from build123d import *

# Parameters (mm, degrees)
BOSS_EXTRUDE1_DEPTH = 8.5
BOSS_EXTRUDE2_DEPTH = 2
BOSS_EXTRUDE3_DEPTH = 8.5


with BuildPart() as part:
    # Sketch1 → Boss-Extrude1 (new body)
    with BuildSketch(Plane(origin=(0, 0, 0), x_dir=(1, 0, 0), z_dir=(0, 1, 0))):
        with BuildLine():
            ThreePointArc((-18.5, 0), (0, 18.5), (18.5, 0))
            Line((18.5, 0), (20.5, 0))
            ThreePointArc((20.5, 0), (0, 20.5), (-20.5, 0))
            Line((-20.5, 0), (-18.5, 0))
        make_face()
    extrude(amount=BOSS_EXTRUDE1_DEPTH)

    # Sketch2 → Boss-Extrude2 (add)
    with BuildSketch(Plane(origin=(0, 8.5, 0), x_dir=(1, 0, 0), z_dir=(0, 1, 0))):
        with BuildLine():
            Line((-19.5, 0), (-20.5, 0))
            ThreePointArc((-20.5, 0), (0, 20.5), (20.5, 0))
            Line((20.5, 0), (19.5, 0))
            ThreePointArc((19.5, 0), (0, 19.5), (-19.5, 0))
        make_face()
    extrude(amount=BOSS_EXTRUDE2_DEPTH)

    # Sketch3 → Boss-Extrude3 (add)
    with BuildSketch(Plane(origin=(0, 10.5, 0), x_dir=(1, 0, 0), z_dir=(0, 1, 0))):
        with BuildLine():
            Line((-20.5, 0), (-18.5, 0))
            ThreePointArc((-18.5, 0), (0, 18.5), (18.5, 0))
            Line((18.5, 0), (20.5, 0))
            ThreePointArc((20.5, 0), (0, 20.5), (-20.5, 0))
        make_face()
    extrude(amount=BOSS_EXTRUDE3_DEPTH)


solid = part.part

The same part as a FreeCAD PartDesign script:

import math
import FreeCAD as App
import Part
import Sketcher
from FreeCAD import Vector

doc = App.newDocument("Part")
params = doc.addObject("Spreadsheet::Sheet", "Params")
for row, (alias, value) in enumerate([
    ("sketch1_radius", "18.5 mm"),
    ("sketch1_radius2", "20.5 mm"),
    ("pad1_length", "8.5 mm"),
    ("sketch2_radius", "19.5 mm"),
    ("sketch2_radius2", "20.5 mm"),
    ("pad2_length", "2 mm"),
    ("sketch3_radius", "18.5 mm"),
    ("sketch3_radius2", "20.5 mm"),
    ("pad3_length", "8.5 mm"),
], start=1):
    params.set(f"A{row}", alias)
    params.set(f"B{row}", "=" + value)
    params.setAlias(f"B{row}", alias)

body = doc.addObject("PartDesign::Body", "Body")

# Sketch on XZ plane
sketch1 = body.newObject("Sketcher::SketchObject", "Sketch")
sketch1.AttachmentSupport = (doc.getObject("XZ_Plane"), [""])
sketch1.MapMode = "FlatFace"
sketch1.addGeometry([
    Part.ArcOfCircle(Part.Circle(Vector(0, 0, 0), Vector(0, 0, 1), 18.5), math.radians(180), math.radians(360)),
    Part.LineSegment(Vector(18.5, 0, 0), Vector(20.5, 0, 0)),
    Part.ArcOfCircle(Part.Circle(Vector(0, 0, 0), Vector(0, 0, 1), 20.5), math.radians(180), math.radians(360)),
    Part.LineSegment(Vector(-20.5, 0, 0), Vector(-18.5, 0, 0)),
], False)
sketch1.addConstraint([
    Sketcher.Constraint("Coincident", 0, 2, 1, 1),
    Sketcher.Constraint("Coincident", 1, 2, 2, 2),
    Sketcher.Constraint("Coincident", 2, 1, 3, 1),
    Sketcher.Constraint("Coincident", 3, 2, 0, 1),
    Sketcher.Constraint("Horizontal", 1),
    Sketcher.Constraint("Horizontal", 3),
    Sketcher.Constraint("Coincident", 0, 3, -1, 1),
    Sketcher.Constraint("Coincident", 2, 3, -1, 1),
    Sketcher.Constraint("PointOnObject", 0, 2, -1),
    Sketcher.Constraint("PointOnObject", 2, 1, -1),
    Sketcher.Constraint("Radius", 0, 18.5),
    Sketcher.Constraint("Radius", 2, 20.5),
])
sketch1.setExpression("Constraints[10]", "Params.sketch1_radius")
sketch1.setExpression("Constraints[11]", "Params.sketch1_radius2")
pad1 = body.newObject("PartDesign::Pad", "Pad")
pad1.Profile = sketch1
pad1.setExpression("Length", "Params.pad1_length")
pad1.Reversed = True

# Sketch on XZ plane
sketch2 = body.newObject("Sketcher::SketchObject", "Sketch001")
sketch2.AttachmentSupport = (doc.getObject("XZ_Plane"), [""])
sketch2.MapMode = "FlatFace"
sketch2.AttachmentOffset = App.Placement(Vector(0, 0, -8.5), App.Rotation())
sketch2.addGeometry([
    Part.LineSegment(Vector(-20.5, 0, 0), Vector(-19.5, 0, 0)),
    Part.ArcOfCircle(Part.Circle(Vector(0, 0, 0), Vector(0, 0, 1), 19.5), math.radians(180), math.radians(360)),
    Part.LineSegment(Vector(19.5, 0, 0), Vector(20.5, 0, 0)),
    Part.ArcOfCircle(Part.Circle(Vector(0, 0, 0), Vector(0, 0, 1), 20.5), math.radians(180), math.radians(360)),
], False)
sketch2.addConstraint([
    Sketcher.Constraint("Coincident", 0, 2, 1, 1),
    Sketcher.Constraint("Coincident", 1, 2, 2, 1),
    Sketcher.Constraint("Coincident", 2, 2, 3, 2),
    Sketcher.Constraint("Coincident", 3, 1, 0, 1),
    Sketcher.Constraint("Horizontal", 0),
    Sketcher.Constraint("Horizontal", 2),
    Sketcher.Constraint("Coincident", 1, 3, -1, 1),
    Sketcher.Constraint("Coincident", 3, 3, -1, 1),
    Sketcher.Constraint("PointOnObject", 0, 2, -1),
    Sketcher.Constraint("PointOnObject", 1, 2, -1),
    Sketcher.Constraint("Radius", 1, 19.5),
    Sketcher.Constraint("Radius", 3, 20.5),
])
sketch2.setExpression("Constraints[10]", "Params.sketch2_radius")
sketch2.setExpression("Constraints[11]", "Params.sketch2_radius2")
pad2 = body.newObject("PartDesign::Pad", "Pad001")
pad2.Profile = sketch2
pad2.setExpression("Length", "Params.pad2_length")
pad2.Reversed = True

# Sketch on XZ plane
sketch3 = body.newObject("Sketcher::SketchObject", "Sketch002")
sketch3.AttachmentSupport = (doc.getObject("XZ_Plane"), [""])
sketch3.MapMode = "FlatFace"
sketch3.AttachmentOffset = App.Placement(Vector(0, 0, -10.5), App.Rotation())
sketch3.addGeometry([
    Part.LineSegment(Vector(-20.5, 0, 0), Vector(-18.5, 0, 0)),
    Part.ArcOfCircle(Part.Circle(Vector(0, 0, 0), Vector(0, 0, 1), 18.5), math.radians(180), math.radians(360)),
    Part.LineSegment(Vector(18.5, 0, 0), Vector(20.5, 0, 0)),
    Part.ArcOfCircle(Part.Circle(Vector(0, 0, 0), Vector(0, 0, 1), 20.5), math.radians(180), math.radians(360)),
], False)
sketch3.addConstraint([
    Sketcher.Constraint("Coincident", 0, 2, 1, 1),
    Sketcher.Constraint("Coincident", 1, 2, 2, 1),
    Sketcher.Constraint("Coincident", 2, 2, 3, 2),
    Sketcher.Constraint("Coincident", 3, 1, 0, 1),
    Sketcher.Constraint("Horizontal", 0),
    Sketcher.Constraint("Horizontal", 2),
    Sketcher.Constraint("Coincident", 1, 3, -1, 1),
    Sketcher.Constraint("Coincident", 3, 3, -1, 1),
    Sketcher.Constraint("PointOnObject", 0, 2, -1),
    Sketcher.Constraint("PointOnObject", 1, 2, -1),
    Sketcher.Constraint("Radius", 1, 18.5),
    Sketcher.Constraint("Radius", 3, 20.5),
])
sketch3.setExpression("Constraints[10]", "Params.sketch3_radius")
sketch3.setExpression("Constraints[11]", "Params.sketch3_radius2")
pad3 = body.newObject("PartDesign::Pad", "Pad002")
pad3.Profile = sketch3
pad3.setExpression("Length", "Params.pad3_length")
pad3.Reversed = True

doc.recompute()
